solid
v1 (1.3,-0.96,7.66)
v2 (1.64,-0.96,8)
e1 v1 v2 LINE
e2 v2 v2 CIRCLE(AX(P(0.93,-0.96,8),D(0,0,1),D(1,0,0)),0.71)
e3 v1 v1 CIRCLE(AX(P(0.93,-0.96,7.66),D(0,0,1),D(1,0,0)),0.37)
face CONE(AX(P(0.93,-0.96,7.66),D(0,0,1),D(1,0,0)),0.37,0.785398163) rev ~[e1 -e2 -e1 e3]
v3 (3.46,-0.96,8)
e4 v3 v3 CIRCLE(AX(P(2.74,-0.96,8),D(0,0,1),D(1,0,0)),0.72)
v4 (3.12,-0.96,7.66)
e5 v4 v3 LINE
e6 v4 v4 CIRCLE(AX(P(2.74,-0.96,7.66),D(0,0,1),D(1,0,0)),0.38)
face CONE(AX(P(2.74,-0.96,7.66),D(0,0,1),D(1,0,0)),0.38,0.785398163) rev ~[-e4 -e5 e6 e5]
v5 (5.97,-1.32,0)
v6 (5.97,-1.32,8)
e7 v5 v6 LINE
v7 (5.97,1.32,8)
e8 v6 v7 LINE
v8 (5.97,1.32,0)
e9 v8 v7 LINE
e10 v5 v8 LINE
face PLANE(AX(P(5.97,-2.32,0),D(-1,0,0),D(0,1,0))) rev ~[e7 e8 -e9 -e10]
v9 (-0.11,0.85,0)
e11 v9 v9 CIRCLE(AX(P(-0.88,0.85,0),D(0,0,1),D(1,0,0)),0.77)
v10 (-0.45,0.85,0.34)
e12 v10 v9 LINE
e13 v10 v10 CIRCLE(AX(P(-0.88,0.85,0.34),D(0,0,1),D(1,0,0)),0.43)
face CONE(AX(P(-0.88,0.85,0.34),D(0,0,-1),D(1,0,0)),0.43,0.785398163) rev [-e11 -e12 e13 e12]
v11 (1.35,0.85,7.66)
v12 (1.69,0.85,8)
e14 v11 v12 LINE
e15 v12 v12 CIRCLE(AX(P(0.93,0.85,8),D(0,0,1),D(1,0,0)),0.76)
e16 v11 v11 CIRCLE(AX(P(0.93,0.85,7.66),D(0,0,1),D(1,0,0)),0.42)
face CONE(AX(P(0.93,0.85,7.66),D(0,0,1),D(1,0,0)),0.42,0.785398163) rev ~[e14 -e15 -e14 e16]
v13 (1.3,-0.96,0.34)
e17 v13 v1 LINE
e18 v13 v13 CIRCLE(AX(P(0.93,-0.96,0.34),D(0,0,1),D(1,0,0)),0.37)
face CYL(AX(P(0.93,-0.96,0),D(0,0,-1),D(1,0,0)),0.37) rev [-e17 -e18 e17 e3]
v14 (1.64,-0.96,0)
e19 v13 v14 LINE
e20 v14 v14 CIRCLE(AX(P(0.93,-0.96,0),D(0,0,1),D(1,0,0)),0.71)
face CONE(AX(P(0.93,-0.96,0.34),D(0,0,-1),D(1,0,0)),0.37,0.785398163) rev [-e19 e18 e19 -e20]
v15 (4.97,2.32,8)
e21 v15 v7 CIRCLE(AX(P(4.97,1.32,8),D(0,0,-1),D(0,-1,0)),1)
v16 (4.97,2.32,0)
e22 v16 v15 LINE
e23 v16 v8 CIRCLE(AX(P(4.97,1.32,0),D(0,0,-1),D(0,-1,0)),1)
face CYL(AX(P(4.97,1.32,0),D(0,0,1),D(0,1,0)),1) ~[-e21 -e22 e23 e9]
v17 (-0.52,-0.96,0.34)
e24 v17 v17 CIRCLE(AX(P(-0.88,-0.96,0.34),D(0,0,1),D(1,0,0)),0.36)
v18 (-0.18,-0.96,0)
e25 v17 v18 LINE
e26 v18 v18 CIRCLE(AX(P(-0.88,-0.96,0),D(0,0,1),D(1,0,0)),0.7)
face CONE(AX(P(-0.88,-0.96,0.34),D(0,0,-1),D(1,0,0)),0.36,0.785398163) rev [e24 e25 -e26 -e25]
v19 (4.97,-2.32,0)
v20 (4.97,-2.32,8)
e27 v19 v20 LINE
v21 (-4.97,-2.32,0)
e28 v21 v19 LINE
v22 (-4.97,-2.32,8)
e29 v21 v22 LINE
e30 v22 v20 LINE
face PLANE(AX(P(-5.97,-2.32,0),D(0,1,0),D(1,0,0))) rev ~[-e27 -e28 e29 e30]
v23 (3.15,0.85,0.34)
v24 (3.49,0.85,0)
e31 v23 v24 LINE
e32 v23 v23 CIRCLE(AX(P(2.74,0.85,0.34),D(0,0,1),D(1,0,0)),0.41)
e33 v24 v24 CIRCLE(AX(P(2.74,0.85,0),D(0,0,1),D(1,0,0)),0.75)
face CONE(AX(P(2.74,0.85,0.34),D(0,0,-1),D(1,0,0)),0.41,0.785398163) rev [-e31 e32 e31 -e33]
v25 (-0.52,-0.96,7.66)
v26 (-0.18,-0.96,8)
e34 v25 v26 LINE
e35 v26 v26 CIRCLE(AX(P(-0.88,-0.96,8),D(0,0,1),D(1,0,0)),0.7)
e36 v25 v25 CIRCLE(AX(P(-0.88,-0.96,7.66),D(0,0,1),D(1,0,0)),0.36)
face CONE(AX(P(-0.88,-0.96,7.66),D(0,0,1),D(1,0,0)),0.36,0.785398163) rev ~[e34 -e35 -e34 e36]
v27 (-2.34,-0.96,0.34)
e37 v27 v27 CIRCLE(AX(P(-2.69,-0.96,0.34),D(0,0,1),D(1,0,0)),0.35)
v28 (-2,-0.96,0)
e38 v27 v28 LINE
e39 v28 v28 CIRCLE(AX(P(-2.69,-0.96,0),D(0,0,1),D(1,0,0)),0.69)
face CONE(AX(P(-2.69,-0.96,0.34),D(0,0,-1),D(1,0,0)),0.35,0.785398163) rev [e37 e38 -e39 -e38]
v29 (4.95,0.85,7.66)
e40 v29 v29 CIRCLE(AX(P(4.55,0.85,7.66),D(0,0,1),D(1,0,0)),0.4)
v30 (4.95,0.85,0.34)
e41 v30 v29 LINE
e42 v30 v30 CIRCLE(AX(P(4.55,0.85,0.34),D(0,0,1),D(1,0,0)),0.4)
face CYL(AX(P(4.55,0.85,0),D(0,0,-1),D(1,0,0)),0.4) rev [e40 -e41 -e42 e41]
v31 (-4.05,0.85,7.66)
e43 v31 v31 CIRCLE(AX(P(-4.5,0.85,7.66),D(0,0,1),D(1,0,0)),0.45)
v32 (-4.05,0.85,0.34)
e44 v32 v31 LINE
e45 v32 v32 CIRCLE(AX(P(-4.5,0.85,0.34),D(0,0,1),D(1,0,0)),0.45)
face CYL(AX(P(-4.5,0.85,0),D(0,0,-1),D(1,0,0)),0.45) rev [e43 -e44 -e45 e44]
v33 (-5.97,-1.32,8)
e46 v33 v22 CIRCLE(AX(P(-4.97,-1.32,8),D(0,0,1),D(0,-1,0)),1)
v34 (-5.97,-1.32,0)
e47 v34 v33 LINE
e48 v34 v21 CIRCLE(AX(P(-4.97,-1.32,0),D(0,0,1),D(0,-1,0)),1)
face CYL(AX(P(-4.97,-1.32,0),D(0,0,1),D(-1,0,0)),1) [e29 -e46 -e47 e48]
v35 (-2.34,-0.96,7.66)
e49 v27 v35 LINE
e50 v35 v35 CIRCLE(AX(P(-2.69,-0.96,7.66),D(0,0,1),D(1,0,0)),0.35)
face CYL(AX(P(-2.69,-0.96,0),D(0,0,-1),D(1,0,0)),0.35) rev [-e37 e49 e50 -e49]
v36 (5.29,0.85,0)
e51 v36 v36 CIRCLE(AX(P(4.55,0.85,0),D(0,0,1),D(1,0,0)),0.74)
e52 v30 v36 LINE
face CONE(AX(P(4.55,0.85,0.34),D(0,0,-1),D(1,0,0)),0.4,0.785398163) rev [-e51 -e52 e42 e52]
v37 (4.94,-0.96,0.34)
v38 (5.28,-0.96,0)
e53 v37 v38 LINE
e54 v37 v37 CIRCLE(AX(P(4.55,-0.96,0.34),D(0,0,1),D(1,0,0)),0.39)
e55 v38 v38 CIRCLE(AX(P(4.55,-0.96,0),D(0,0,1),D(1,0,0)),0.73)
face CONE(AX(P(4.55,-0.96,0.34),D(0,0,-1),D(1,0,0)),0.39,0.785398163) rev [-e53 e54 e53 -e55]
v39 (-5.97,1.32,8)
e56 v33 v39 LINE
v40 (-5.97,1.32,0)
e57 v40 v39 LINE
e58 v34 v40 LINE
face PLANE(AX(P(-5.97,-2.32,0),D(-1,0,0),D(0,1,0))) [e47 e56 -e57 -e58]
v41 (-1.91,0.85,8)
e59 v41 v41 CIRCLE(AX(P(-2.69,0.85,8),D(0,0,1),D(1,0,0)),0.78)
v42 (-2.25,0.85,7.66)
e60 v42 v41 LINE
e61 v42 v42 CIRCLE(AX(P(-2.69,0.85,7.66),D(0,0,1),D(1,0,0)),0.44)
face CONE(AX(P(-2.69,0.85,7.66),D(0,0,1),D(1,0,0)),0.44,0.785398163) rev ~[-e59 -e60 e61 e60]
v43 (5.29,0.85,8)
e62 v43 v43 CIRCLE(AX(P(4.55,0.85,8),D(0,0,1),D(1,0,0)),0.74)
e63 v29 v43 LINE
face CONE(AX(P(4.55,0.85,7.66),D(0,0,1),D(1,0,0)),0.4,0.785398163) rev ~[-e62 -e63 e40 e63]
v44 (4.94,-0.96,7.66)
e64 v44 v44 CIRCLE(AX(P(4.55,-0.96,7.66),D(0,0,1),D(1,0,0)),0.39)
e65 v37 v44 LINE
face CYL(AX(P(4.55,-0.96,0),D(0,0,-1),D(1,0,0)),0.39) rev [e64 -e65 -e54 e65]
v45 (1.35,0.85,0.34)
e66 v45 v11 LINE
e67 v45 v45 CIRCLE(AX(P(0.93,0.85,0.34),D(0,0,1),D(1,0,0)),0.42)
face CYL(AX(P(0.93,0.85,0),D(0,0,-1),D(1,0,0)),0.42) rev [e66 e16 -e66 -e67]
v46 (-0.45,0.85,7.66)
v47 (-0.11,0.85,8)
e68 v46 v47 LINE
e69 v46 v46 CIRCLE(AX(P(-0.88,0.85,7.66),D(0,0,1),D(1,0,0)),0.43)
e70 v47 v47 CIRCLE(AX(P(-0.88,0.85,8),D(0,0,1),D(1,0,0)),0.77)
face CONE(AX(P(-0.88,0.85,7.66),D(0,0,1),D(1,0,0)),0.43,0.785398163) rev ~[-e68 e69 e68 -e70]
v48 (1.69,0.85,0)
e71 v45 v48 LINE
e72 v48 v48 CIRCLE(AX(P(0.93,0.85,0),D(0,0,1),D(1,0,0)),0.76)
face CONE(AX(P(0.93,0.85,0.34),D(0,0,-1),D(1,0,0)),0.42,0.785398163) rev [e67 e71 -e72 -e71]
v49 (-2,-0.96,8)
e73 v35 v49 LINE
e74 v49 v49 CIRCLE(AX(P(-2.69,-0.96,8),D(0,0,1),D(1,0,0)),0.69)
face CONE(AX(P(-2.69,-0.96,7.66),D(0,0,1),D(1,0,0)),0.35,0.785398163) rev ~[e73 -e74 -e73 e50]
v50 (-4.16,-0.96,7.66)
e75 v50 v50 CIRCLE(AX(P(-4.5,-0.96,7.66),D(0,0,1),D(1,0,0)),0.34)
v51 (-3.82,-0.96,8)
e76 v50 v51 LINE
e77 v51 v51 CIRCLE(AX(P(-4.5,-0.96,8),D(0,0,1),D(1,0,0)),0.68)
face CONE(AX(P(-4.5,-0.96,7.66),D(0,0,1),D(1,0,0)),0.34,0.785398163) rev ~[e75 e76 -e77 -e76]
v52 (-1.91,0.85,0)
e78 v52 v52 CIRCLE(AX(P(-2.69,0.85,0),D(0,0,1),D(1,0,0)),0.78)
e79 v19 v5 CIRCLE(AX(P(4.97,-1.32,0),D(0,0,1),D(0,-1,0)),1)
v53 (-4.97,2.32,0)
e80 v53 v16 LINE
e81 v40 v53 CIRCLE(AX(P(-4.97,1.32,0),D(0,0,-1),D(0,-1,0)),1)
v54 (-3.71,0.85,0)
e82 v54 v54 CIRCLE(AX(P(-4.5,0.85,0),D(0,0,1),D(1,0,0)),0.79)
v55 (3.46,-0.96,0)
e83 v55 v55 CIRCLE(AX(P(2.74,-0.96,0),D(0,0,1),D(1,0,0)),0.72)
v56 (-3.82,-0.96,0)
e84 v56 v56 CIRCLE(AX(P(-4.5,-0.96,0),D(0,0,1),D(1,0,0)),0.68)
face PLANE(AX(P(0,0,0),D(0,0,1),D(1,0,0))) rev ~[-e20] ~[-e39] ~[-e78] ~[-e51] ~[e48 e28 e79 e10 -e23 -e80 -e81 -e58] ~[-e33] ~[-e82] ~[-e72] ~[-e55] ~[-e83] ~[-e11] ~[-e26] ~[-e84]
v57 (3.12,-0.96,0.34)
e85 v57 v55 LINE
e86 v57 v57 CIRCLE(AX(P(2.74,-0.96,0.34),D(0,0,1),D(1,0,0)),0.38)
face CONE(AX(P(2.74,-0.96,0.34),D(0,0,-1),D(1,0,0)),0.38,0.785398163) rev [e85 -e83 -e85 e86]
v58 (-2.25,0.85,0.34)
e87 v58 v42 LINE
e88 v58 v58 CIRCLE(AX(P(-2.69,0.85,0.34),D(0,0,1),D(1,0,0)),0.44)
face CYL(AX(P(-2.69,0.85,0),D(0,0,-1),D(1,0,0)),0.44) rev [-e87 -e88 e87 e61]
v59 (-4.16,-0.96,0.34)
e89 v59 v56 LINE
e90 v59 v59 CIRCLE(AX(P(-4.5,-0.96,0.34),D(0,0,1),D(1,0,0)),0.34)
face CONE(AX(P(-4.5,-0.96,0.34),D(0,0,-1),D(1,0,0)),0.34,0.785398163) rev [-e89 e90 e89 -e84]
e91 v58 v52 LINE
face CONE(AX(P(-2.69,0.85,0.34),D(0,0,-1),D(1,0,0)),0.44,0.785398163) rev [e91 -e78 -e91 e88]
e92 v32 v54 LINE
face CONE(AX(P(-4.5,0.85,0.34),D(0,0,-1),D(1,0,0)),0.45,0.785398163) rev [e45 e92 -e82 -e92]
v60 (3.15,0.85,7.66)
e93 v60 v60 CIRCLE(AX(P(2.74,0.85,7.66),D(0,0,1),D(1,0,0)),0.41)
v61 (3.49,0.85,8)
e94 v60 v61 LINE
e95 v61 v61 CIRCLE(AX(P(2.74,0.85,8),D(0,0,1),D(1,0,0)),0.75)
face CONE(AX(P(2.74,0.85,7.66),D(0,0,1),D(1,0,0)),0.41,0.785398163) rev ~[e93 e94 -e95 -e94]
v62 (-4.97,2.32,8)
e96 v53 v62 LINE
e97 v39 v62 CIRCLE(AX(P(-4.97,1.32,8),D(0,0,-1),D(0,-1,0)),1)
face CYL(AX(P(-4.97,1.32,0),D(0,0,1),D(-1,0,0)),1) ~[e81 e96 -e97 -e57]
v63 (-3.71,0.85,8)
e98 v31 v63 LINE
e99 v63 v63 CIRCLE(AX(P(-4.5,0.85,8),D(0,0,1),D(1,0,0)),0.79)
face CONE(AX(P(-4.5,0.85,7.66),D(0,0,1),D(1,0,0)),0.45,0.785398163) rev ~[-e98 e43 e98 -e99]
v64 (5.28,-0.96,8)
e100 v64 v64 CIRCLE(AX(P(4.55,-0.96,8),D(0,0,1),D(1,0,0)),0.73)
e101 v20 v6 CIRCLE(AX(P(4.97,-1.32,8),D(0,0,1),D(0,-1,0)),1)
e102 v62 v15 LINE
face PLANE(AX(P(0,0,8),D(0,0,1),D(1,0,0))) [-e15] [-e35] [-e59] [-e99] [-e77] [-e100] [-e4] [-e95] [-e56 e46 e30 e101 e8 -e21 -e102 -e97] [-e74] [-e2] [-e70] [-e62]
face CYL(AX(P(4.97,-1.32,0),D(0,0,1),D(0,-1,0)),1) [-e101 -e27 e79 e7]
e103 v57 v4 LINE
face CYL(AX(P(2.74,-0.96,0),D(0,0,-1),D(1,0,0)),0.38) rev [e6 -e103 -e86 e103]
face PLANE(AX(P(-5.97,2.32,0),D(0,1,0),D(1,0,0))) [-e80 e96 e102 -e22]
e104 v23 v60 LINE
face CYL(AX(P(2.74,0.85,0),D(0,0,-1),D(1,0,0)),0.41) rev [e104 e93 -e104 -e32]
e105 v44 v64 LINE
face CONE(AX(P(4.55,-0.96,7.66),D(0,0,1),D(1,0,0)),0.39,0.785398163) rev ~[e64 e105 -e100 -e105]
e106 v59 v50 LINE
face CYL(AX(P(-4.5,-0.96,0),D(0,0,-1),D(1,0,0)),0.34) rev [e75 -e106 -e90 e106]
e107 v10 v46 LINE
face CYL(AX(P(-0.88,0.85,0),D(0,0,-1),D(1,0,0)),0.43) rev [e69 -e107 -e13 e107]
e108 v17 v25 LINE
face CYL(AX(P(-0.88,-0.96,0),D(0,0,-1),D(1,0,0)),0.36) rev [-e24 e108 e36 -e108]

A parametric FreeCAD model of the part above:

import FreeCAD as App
import Part
import Sketcher

V = App.Vector


def edges_at(feature, points):
    """Names of the edges that pass closest to the given points."""
    edges = feature.Shape.Edges
    near = lambda p: min(range(len(edges)), key=lambda i: edges[i].distToShape(Part.Vertex(*p))[0])
    return sorted({f"Edge{near(p) + 1}" for p in points})

doc = App.newDocument("Part")
params = doc.addObject("Spreadsheet::Sheet", "Params")
for row, (alias, value) in enumerate([
    ("sketch1_diameter", "0.7 mm"),
    ("sketch1_diameter2", "0.9 mm"),
    ("sketch1_diameter3", "0.8 mm"),
    ("sketch1_diameter4", "0.68 mm"),
    ("sketch1_diameter5", "0.72 mm"),
    ("pad1_length", "8 mm"),
    ("chamfer_size", "0.34 mm"),
    ("fillet_radius", "1 mm"),
], start=1):
    params.set(f"A{row}", alias)
    params.set(f"B{row}", "=" + value)
    params.setAlias(f"B{row}", alias)

body = doc.addObject("PartDesign::Body", "Body")

# Sketch on XY plane
sketch1 = body.newObject("Sketcher::SketchObject", "Sketch")
sketch1.AttachmentSupport = (doc.getObject("XY_Plane"), [""])
sketch1.MapMode = "FlatFace"
sketch1.addGeometry([
    Part.LineSegment(V(-5.97, 2.32, 0), V(-5.97, -2.32, 0)),  # 0
    Part.LineSegment(V(-5.97, -2.32, 0), V(5.97, -2.32, 0)),  # 1
    Part.LineSegment(V(5.97, -2.32, 0), V(5.97, 2.32, 0)),  # 2
    Part.LineSegment(V(5.97, 2.32, 0), V(-5.97, 2.32, 0)),  # 3
    Part.Circle(V(-4.5, -0.96, 0), V(0, 0, 1), 0.34),  # 4
    Part.Circle(V(-2.69, -0.96, 0), V(0, 0, 1), 0.35),  # 5
    Part.Circle(V(-0.88, -0.96, 0), V(0, 0, 1), 0.36),  # 6
    Part.Circle(V(0.93, -0.96, 0), V(0, 0, 1), 0.37),  # 7
    Part.Circle(V(2.74, -0.96, 0), V(0, 0, 1), 0.38),  # 8
    Part.Circle(V(4.55, -0.96, 0), V(0, 0, 1), 0.39),  # 9
    Part.Circle(V(-4.5, 0.85, 0), V(0, 0, 1), 0.45),  # 10
    Part.Circle(V(-2.69, 0.85, 0), V(0, 0, 1), 0.44),  # 11
    Part.Circle(V(-0.88, 0.85, 0), V(0, 0, 1), 0.43),  # 12
    Part.Circle(V(0.93, 0.85, 0), V(0, 0, 1), 0.42),  # 13
    Part.Circle(V(2.74, 0.85, 0), V(0, 0, 1), 0.41),  # 14
    Part.Circle(V(4.55, 0.85, 0), V(0, 0, 1), 0.4),  # 15
], False)
sketch1.addConstraint([
    Sketcher.Constraint("Coincident", 0, 2, 1, 1),
    Sketcher.Constraint("Coincident", 1, 2, 2, 1),
    Sketcher.Constraint("Coincident", 2, 2, 3, 1),
    Sketcher.Constraint("Coincident", 3, 2, 0, 1),
    Sketcher.Constraint("Vertical", 0),
    Sketcher.Constraint("Horizontal", 1),
    Sketcher.Constraint("Vertical", 2),
    Sketcher.Constraint("Horizontal", 3),
    Sketcher.Constraint("Symmetric", 0, 2, 2, 2, -1, 1),
    Sketcher.Constraint("Horizontal", 4, 3, 5, 3),
    Sketcher.Constraint("Horizontal", 5, 3, 6, 3),
    Sketcher.Constraint("Horizontal", 6, 3, 7, 3),
    Sketcher.Constraint("Horizontal", 7, 3, 8, 3),
    Sketcher.Constraint("Horizontal", 8, 3, 9, 3),
    Sketcher.Constraint("Horizontal", 10, 3, 11, 3),
    Sketcher.Constraint("Horizontal", 11, 3, 12, 3),
    Sketcher.Constraint("Horizontal", 12, 3, 13, 3),
    Sketcher.Constraint("Horizontal", 13, 3, 14, 3),
    Sketcher.Constraint("Horizontal", 14, 3, 15, 3),
    Sketcher.Constraint("Vertical", 4, 3, 10, 3),
    Sketcher.Constraint("Vertical", 5, 3, 11, 3),
    Sketcher.Constraint("Vertical", 6, 3, 12, 3),
    Sketcher.Constraint("Vertical", 7, 3, 13, 3),
    Sketcher.Constraint("Vertical", 8, 3, 14, 3),
    Sketcher.Constraint("Vertical", 9, 3, 15, 3),
    Sketcher.Constraint("Diameter", 5, 0.7),
    Sketcher.Constraint("Diameter", 10, 0.9),
    Sketcher.Constraint("Diameter", 15, 0.8),
    Sketcher.Constraint("Diameter", 4, 0.68),
    Sketcher.Constraint("Diameter", 6, 0.72),
    Sketcher.Constraint("Diameter", 7, 0.74),
    Sketcher.Constraint("Diameter", 8, 0.76),
    Sketcher.Constraint("Diameter", 9, 0.78),
    Sketcher.Constraint("Diameter", 11, 0.88),
    Sketcher.Constraint("Diameter", 12, 0.86),
    Sketcher.Constraint("Diameter", 13, 0.84),
    Sketcher.Constraint("Diameter", 14, 0.82),
    Sketcher.Constraint("DistanceX", 1, 1, 1, 2, 11.94),
    Sketcher.Constraint("DistanceY", 0, 2, 0, 1, 4.64),
    Sketcher.Constraint("DistanceX", 4, 3, -1, 1, 4.5),
    Sketcher.Constraint("DistanceY", 4, 3, -1, 1, 0.96),
    Sketcher.Constraint("DistanceX", 5, 3, -1, 1, 2.69),
    Sketcher.Constraint("DistanceX", 6, 3, -1, 1, 0.88),
    Sketcher.Constraint("DistanceX", -1, 1, 7, 3, 0.93),
    Sketcher.Constraint("DistanceX", -1, 1, 8, 3, 2.74),
    Sketcher.Constraint("DistanceX", -1, 1, 9, 3, 4.55),
    Sketcher.Constraint("DistanceY", -1, 1, 10, 3, 0.85),
])
sketch1.setExpression("Constraints[25]", "Params.sketch1_diameter")
sketch1.setExpression("Constraints[26]", "Params.sketch1_diameter2")
sketch1.setExpression("Constraints[27]", "Params.sketch1_diameter3")
sketch1.setExpression("Constraints[28]", "Params.sketch1_diameter4")
sketch1.setExpression("Constraints[29]", "Params.sketch1_diameter5")
pad1 = body.newObject("PartDesign::Pad", "Pad")
pad1.Profile = sketch1
pad1.setExpression("Length", "Params.pad1_length")
doc.recompute()

chamfer = body.newObject("PartDesign::Chamfer", "Chamfer")
chamfer.Base = (pad1, edges_at(pad1, [
    (-4.16, -0.96, 4),
    (-4.84, -0.96, 0),
    (-4.84, -0.96, 8),
    (-4.05, 0.85, 4),
    (-4.95, 0.85, 0),
    (-4.95, 0.85, 8),
    (-2.25, 0.85, 4),
    (-3.13, 0.85, 0),
    (-3.13, 0.85, 8),
    (-2.34, -0.96, 4),
    (-3.04, -0.96, 0),
    (-3.04, -0.96, 8),
    (-0.45, 0.85, 4),
    (-1.31, 0.85, 0),
    (-1.31, 0.85, 8),
    (-0.52, -0.96, 4),
    (-1.24, -0.96, 0),
    (-1.24, -0.96, 8),
    (1.35, 0.85, 4),
    (0.51, 0.85, 0),
    (0.51, 0.85, 8),
    (1.3, -0.96, 4),
    (0.56, -0.96, 0),
    (0.56, -0.96, 8),
    (3.15, 0.85, 4),
    (2.33, 0.85, 0),
    (2.33, 0.85, 8),
    (3.12, -0.96, 4),
    (2.36, -0.96, 0),
    (2.36, -0.96, 8),
    (4.95, 0.85, 4),
    (4.15, 0.85, 0),
    (4.15, 0.85, 8),
    (4.94, -0.96, 4),
    (4.16, -0.96, 0),
    (4.16, -0.96, 8),
]))
chamfer.setExpression("Size", "Params.chamfer_size")
doc.recompute()

fillet = body.newObject("PartDesign::Fillet", "Fillet")
fillet.Base = (chamfer, edges_at(chamfer, [
    (5.97, -2.32, 4),
    (5.97, 2.32, 4),
    (-5.97, -2.32, 4),
    (-5.97, 2.32, 4),
]))
fillet.setExpression("Radius", "Params.fillet_radius")

doc.recompute()
